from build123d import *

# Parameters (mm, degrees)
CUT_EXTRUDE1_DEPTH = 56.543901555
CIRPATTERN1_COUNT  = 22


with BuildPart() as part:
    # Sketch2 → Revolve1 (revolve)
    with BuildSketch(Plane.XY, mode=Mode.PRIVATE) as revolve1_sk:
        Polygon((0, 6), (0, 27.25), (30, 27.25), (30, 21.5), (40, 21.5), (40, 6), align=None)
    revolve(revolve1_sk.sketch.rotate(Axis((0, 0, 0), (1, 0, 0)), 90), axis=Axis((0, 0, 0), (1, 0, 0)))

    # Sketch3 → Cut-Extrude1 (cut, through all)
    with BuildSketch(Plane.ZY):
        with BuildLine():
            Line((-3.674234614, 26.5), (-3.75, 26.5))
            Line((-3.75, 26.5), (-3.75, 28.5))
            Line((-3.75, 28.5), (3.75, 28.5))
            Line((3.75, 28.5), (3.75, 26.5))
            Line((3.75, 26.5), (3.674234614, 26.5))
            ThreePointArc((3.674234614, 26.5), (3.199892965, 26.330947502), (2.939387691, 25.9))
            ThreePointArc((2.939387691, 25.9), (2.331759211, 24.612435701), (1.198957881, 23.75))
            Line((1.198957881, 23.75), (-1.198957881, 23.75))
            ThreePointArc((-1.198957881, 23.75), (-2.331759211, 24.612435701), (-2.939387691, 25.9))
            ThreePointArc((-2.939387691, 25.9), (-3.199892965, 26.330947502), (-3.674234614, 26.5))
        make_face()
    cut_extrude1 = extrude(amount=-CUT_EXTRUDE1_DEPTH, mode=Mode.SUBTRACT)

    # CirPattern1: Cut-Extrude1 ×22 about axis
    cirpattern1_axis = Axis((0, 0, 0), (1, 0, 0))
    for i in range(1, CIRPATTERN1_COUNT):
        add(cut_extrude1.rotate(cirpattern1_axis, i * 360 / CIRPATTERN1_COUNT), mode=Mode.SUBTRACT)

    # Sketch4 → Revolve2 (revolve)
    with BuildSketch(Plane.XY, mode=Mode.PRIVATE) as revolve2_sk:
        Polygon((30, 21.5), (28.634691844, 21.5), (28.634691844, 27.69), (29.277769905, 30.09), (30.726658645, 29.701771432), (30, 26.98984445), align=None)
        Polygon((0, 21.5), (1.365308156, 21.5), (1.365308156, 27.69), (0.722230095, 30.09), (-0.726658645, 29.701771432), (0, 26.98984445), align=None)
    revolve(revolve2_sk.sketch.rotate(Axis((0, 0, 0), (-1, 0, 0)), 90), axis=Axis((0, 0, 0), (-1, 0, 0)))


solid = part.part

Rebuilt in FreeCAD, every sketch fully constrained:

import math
import FreeCAD as App
import Part
import Sketcher
Q = App.Units.Quantity

doc = App.newDocument("Part")
body = doc.addObject("PartDesign::Body", "Body")

sketch1 = body.newObject("Sketcher::SketchObject", "Sketch")
sketch1.AttachmentSupport = (doc.getObject("XY_Plane"), [""])
sketch1.MapMode = "FlatFace"
sketch1.addGeometry([
    Part.LineSegment(App.Vector(0, 27, 0), App.Vector(0, 6, 0)),
    Part.LineSegment(App.Vector(0, 6, 0), App.Vector(40, 6, 0)),
    Part.LineSegment(App.Vector(40, 6, 0), App.Vector(40, 22, 0)),
    Part.LineSegment(App.Vector(40, 22, 0), App.Vector(30, 22, 0)),
    Part.LineSegment(App.Vector(30, 22, 0), App.Vector(30, 27, 0)),
    Part.LineSegment(App.Vector(30, 27, 0), App.Vector(0, 27, 0)),
], False)
sketch1.addConstraint([
    Sketcher.Constraint("Coincident", 0, 2, 1, 1),
    Sketcher.Constraint("Coincident", 1, 2, 2, 1),
    Sketcher.Constraint("Coincident", 2, 2, 3, 1),
    Sketcher.Constraint("Coincident", 3, 2, 4, 1),
    Sketcher.Constraint("Coincident", 4, 2, 5, 1),
    Sketcher.Constraint("Coincident", 5, 2, 0, 1),
    Sketcher.Constraint("Vertical", 0),
    Sketcher.Constraint("Horizontal", 1),
    Sketcher.Constraint("Vertical", 2),
    Sketcher.Constraint("Horizontal", 3),
    Sketcher.Constraint("Vertical", 4),
    Sketcher.Constraint("Horizontal", 5),
    Sketcher.Constraint("PointOnObject", 0, 2, -2),
    Sketcher.Constraint("DistanceX", 1, 1, 1, 2, 40.0),
    Sketcher.Constraint("DistanceX", 3, 2, 3, 1, 10.0),
    Sketcher.Constraint("DistanceY", 2, 1, 2, 2, 15.5),
    Sketcher.Constraint("DistanceY", -1, 1, 0, 2, 6.0),
    Sketcher.Constraint("DistanceY", 0, 2, 0, 1, 21.25),
])
revolution = body.newObject("PartDesign::Revolution", "Revolution")
revolution.Profile = sketch1
revolution.ReferenceAxis = (sketch1, ["H_Axis"])
revolution.Angle = 360

sketch2 = body.newObject("Sketcher::SketchObject", "Sketch001")
sketch2.AttachmentSupport = (doc.getObject("YZ_Plane"), [""])
sketch2.MapMode = "FlatFace"
sketch2.addGeometry([
    Part.LineSegment(App.Vector(26.5, -3.75, 0), App.Vector(26.5, -3.67, 0)),
    Part.ArcOfCircle(Part.Circle(App.Vector(25.75, -3.67, 0), App.Vector(0, 0, 1), 0.75), math.radians(0), math.radians(78)),
    Part.ArcOfCircle(Part.Circle(App.Vector(26.5, 0, 0), App.Vector(0, 0, 1), 3), math.radians(-156), math.radians(-102)),
    Part.LineSegment(App.Vector(23.75, -1.2, 0), App.Vector(23.75, 1.2, 0)),
    Part.ArcOfCircle(Part.Circle(App.Vector(26.5, 0, 0), App.Vector(0, 0, 1), 3), math.radians(102), math.radians(156)),
    Part.ArcOfCircle(Part.Circle(App.Vector(25.75, 3.67, 0), App.Vector(0, 0, 1), 0.75), math.radians(-78), math.radians(0)),
    Part.LineSegment(App.Vector(26.5, 3.67, 0), App.Vector(26.5, 3.75, 0)),
    Part.LineSegment(App.Vector(26.5, 3.75, 0), App.Vector(28.5, 3.75, 0)),
    Part.LineSegment(App.Vector(28.5, 3.75, 0), App.Vector(28.5, -3.75, 0)),
    Part.LineSegment(App.Vector(28.5, -3.75, 0), App.Vector(26.5, -3.75, 0)),
], False)
sketch2.addConstraint([
    Sketcher.Constraint("Tangent", 0, 2, 1, 1),
    Sketcher.Constraint("Tangent", 1, 2, 2, 2),
    Sketcher.Constraint("Coincident", 2, 1, 3, 1),
    Sketcher.Constraint("Coincident", 3, 2, 4, 2),
    Sketcher.Constraint("Tangent", 4, 1, 5, 1),
    Sketcher.Constraint("Tangent", 5, 2, 6, 1),
    Sketcher.Constraint("Coincident", 6, 2, 7, 1),
    Sketcher.Constraint("Coincident", 7, 2, 8, 1),
    Sketcher.Constraint("Coincident", 8, 2, 9, 1),
    Sketcher.Constraint("Coincident", 9, 2, 0, 1),
    Sketcher.Constraint("Vertical", 0),
    Sketcher.Constraint("Vertical", 3),
    Sketcher.Constraint("Vertical", 6),
    Sketcher.Constraint("Horizontal", 7),
    Sketcher.Constraint("Vertical", 8),
    Sketcher.Constraint("Horizontal", 9),
    Sketcher.Constraint("Coincident", 4, 3, 2, 3),
    Sketcher.Constraint("Equal", 2, 4),
    Sketcher.Constraint("Equal", 1, 5),
    Sketcher.Constraint("Symmetric", 1, 3, 5, 3, -1),
    Sketcher.Constraint("Vertical", 4, 3, 0, 2),
    Sketcher.Constraint("Equal", 0, 6),
    Sketcher.Constraint("Radius", 2, 3.0),
    Sketcher.Constraint("DistanceX", 7, 1, 7, 2, 2.0),
    Sketcher.Constraint("Radius", 1, 0.75),
    Sketcher.Constraint("DistanceY", 8, 2, 8, 1, 7.5),
    Sketcher.Constraint("DistanceX", 2, 1, 1, 3, 2.0),
    Sketcher.Constraint("DistanceX", -1, 1, 2, 3, 26.5),
])
pocket1 = body.newObject("PartDesign::Pocket", "Pocket")
pocket1.Profile = sketch2
pocket1.Type = "ThroughAll"
pocket1.Reversed = True
doc.recompute()

polarpattern = body.newObject("PartDesign::PolarPattern", "PolarPattern")
polarpattern.Originals = [pocket1]
polarpattern.Axis = (doc.getObject("X_Axis"), [""])
polarpattern.Angle = 360
polarpattern.Occurrences = 22
body.Tip = polarpattern

sketch3 = body.newObject("Sketcher::SketchObject", "Sketch002")
sketch3.AttachmentSupport = (doc.getObject("XY_Plane"), [""])
sketch3.MapMode = "FlatFace"
sketch3.addGeometry([
    Part.LineSegment(App.Vector(28.6, 21.5, 0), App.Vector(30, 21.5, 0)),
    Part.LineSegment(App.Vector(30, 21.5, 0), App.Vector(30, 27, 0)),
    Part.LineSegment(App.Vector(30, 27, 0), App.Vector(30.7, 29.7, 0)),
    Part.LineSegment(App.Vector(30.7, 29.7, 0), App.Vector(29.3, 30.1, 0)),
    Part.LineSegment(App.Vector(29.3, 30.1, 0), App.Vector(28.6, 27.7, 0)),
    Part.LineSegment(App.Vector(28.6, 27.7, 0), App.Vector(28.6, 21.5, 0)),
    Part.LineSegment(App.Vector(0, 21.5, 0), App.Vector(1.4, 21.5, 0)),
    Part.LineSegment(App.Vector(1.4, 21.5, 0), App.Vector(1.4, 27.7, 0)),
    Part.LineSegment(App.Vector(1.4, 27.7, 0), App.Vector(0.7, 30.1, 0)),
    Part.LineSegment(App.Vector(0.7, 30.1, 0), App.Vector(-0.7, 29.7, 0)),
    Part.LineSegment(App.Vector(-0.7, 29.7, 0), App.Vector(0, 27, 0)),
    Part.LineSegment(App.Vector(0, 27, 0), App.Vector(0, 21.5, 0)),
], False)
sketch3.addConstraint([
    Sketcher.Constraint("Coincident", 0, 2, 1, 1),
    Sketcher.Constraint("Coincident", 1, 2, 2, 1),
    Sketcher.Constraint("Coincident", 2, 2, 3, 1),
    Sketcher.Constraint("Coincident", 3, 2, 4, 1),
    Sketcher.Constraint("Coincident", 4, 2, 5, 1),
    Sketcher.Constraint("Coincident", 5, 2, 0, 1),
    Sketcher.Constraint("Coincident", 6, 2, 7, 1),
    Sketcher.Constraint("Coincident", 7, 2, 8, 1),
    Sketcher.Constraint("Coincident", 8, 2, 9, 1),
    Sketcher.Constraint("Coincident", 9, 2, 10, 1),
    Sketcher.Constraint("Coincident", 10, 2, 11, 1),
    Sketcher.Constraint("Coincident", 11, 2, 6, 1),
    Sketcher.Constraint("Horizontal", 0),
    Sketcher.Constraint("Vertical", 1),
    Sketcher.Constraint("Vertical", 5),
    Sketcher.Constraint("Horizontal", 6),
    Sketcher.Constraint("Vertical", 7),
    Sketcher.Constraint("Vertical", 11),
    Sketcher.Constraint("PointOnObject", 10, 2, -2),
    Sketcher.Constraint("Perpendicular", 2, 3),
    Sketcher.Constraint("Perpendicular", 3, 4),
    Sketcher.Constraint("Perpendicular", 8, 9),
    Sketcher.Constraint("Perpendicular", 9, 10),
    Sketcher.Constraint("Horizontal", 5, 2, 6, 2),
    Sketcher.Constraint("Horizontal", 4, 2, 7, 2),
    Sketcher.Constraint("Horizontal", 3, 2, 8, 2),
    Sketcher.Constraint("Horizontal", 2, 2, 9, 2),
    Sketcher.Constraint("Horizontal", 1, 2, 10, 2),
    Sketcher.Constraint("Equal", 0, 6),
    Sketcher.Constraint("Angle", 2, Q("75 deg")),
    Sketcher.Constraint("DistanceX", -1, 1, 0, 2, 30.0),
    Sketcher.Constraint("Distance", 3, 1.5),
    Sketcher.Constraint("DistanceY", 5, 2, 5, 1, 6.19),
    Sketcher.Constraint("DistanceY", -1, 1, 0, 2, 21.5),
    Sketcher.Constraint("DistanceY", 4, 2, 3, 2, 2.4),
    Sketcher.Constraint("DistanceX", 0, 1, 0, 2, 1.365308),
])
revolution2 = body.newObject("PartDesign::Revolution", "Revolution001")
revolution2.Profile = sketch3
revolution2.ReferenceAxis = (sketch3, ["H_Axis"])
revolution2.Angle = 360

doc.recompute()
